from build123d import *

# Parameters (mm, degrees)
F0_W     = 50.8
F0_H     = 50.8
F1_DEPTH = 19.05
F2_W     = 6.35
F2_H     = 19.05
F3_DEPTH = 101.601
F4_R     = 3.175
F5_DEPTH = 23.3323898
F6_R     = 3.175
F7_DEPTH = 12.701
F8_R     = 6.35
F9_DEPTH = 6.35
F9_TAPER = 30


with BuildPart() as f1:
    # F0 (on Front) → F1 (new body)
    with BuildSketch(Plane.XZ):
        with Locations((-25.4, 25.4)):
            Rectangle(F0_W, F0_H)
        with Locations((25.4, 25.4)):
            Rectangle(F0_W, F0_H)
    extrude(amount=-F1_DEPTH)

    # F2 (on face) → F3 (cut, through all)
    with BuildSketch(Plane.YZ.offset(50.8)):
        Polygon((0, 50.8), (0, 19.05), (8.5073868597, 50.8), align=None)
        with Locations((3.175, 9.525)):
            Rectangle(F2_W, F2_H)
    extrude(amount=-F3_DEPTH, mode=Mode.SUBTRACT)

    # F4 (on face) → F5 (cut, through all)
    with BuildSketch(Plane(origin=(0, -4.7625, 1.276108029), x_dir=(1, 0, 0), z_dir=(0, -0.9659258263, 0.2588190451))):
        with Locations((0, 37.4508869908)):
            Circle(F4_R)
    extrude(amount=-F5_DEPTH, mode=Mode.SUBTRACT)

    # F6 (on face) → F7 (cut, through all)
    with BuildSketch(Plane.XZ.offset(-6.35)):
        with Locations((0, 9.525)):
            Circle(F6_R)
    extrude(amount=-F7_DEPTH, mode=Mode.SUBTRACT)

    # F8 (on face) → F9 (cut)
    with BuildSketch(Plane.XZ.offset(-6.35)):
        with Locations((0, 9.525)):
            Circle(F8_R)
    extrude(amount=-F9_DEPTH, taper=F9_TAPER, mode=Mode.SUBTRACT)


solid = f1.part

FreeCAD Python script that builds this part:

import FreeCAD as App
import Part
import Sketcher
from FreeCAD import Vector
Q = App.Units.Quantity

doc = App.newDocument("Part")
body = doc.addObject("PartDesign::Body", "Body")

sketch1 = body.newObject("Sketcher::SketchObject", "Sketch")
sketch1.AttachmentSupport = (doc.getObject("XZ_Plane"), [""])
sketch1.MapMode = "FlatFace"
sketch1.addGeometry([
    Part.LineSegment(Vector(-51, 51, 0), Vector(-51, 0, 0)),
    Part.LineSegment(Vector(-51, 0, 0), Vector(51, 0, 0)),
    Part.LineSegment(Vector(51, 0, 0), Vector(51, 51, 0)),
    Part.LineSegment(Vector(51, 51, 0), Vector(-51, 51, 0)),
], False)
sketch1.addConstraint([
    Sketcher.Constraint("Coincident", 0, 2, 1, 1),
    Sketcher.Constraint("Coincident", 1, 2, 2, 1),
    Sketcher.Constraint("Coincident", 2, 2, 3, 1),
    Sketcher.Constraint("Coincident", 3, 2, 0, 1),
    Sketcher.Constraint("Vertical", 0),
    Sketcher.Constraint("Horizontal", 1),
    Sketcher.Constraint("Vertical", 2),
    Sketcher.Constraint("Horizontal", 3),
    Sketcher.Constraint("Symmetric", 0, 2, 1, 2, -1, 1),
    Sketcher.Constraint("DistanceX", 1, 1, 1, 2, Q("4 in")),
    Sketcher.Constraint("DistanceY", 0, 2, 0, 1, Q("2 in")),
])
pad1 = body.newObject("PartDesign::Pad", "Pad")
pad1.Profile = sketch1
pad1.Length = Q("0.75 in")
pad1.Reversed = True

sketch2 = body.newObject("Sketcher::SketchObject", "Sketch001")
sketch2.AttachmentSupport = (doc.getObject("YZ_Plane"), [""])
sketch2.MapMode = "FlatFace"
sketch2.AttachmentOffset = App.Placement(Vector(0, 0, 2 * 25.4), App.Rotation())
sketch2.addGeometry([
    Part.LineSegment(Vector(0, 51, 0), Vector(0, 19, 0)),
    Part.LineSegment(Vector(0, 19, 0), Vector(9, 51, 0)),
    Part.LineSegment(Vector(9, 51, 0), Vector(0, 51, 0)),
    Part.LineSegment(Vector(0, 19, 0), Vector(0, 0, 0)),
    Part.LineSegment(Vector(0, 0, 0), Vector(6, 0, 0)),
    Part.LineSegment(Vector(6, 0, 0), Vector(6, 19, 0)),
    Part.LineSegment(Vector(6, 19, 0), Vector(0, 19, 0)),
], False)
sketch2.addConstraint([
    Sketcher.Constraint("Coincident", 0, 2, 1, 1),
    Sketcher.Constraint("Coincident", 1, 2, 2, 1),
    Sketcher.Constraint("Coincident", 2, 2, 0, 1),
    Sketcher.Constraint("Coincident", 3, 2, 4, 1),
    Sketcher.Constraint("Coincident", 4, 2, 5, 1),
    Sketcher.Constraint("Coincident", 5, 2, 6, 1),
    Sketcher.Constraint("Coincident", 6, 2, 3, 1),
    Sketcher.Constraint("Vertical", 0),
    Sketcher.Constraint("Horizontal", 2),
    Sketcher.Constraint("Vertical", 3),
    Sketcher.Constraint("Horizontal", 4),
    Sketcher.Constraint("Vertical", 5),
    Sketcher.Constraint("Horizontal", 6),
    Sketcher.Constraint("Coincident", 3, 2, -1, 1),
    Sketcher.Constraint("Coincident", 6, 2, 0, 2),
    Sketcher.Constraint("DistanceY", -1, 1, 1, 2, Q("2 in")),
    Sketcher.Constraint("Angle", 1, Q("75 deg")),
    Sketcher.Constraint("DistanceX", 4, 1, 4, 2, Q("0.25 in")),
    Sketcher.Constraint("DistanceY", 0, 2, 0, 1, Q("1.25 in")),
])
pocket1 = body.newObject("PartDesign::Pocket", "Pocket")
pocket1.Profile = sketch2
pocket1.Type = "ThroughAll"

sketch3 = body.newObject("Sketcher::SketchObject", "Sketch002")
sketch3.Placement = App.Placement(Vector(0, -4.7625, 1.276108), App.Rotation(Vector(1, 0, 0), Vector(0, 0.258819045, 0.965925826), Vector(0, -0.965925826, 0.258819045), "ZXY"))
sketch3.addGeometry(Part.Circle(Vector(0, 37.5, 0), Vector(0, 0, 1), 3.2), False)
sketch3.addConstraint([
    Sketcher.Constraint("PointOnObject", 0, 3, -2),
    Sketcher.Constraint("Diameter", 0, Q("0.25 in")),
    Sketcher.Constraint("DistanceY", -1, 1, 0, 3, 37.450887),
])
pocket2 = body.newObject("PartDesign::Pocket", "Pocket001")
pocket2.Profile = sketch3
pocket2.Type = "ThroughAll"

sketch4 = body.newObject("Sketcher::SketchObject", "Sketch003")
sketch4.AttachmentSupport = (doc.getObject("XZ_Plane"), [""])
sketch4.MapMode = "FlatFace"
sketch4.AttachmentOffset = App.Placement(Vector(0, 0, -0.25 * 25.4), App.Rotation())
sketch4.addGeometry(Part.Circle(Vector(0, 9.5, 0), Vector(0, 0, 1), 3.2), False)
sketch4.addConstraint([
    Sketcher.Constraint("PointOnObject", 0, 3, -2),
    Sketcher.Constraint("Diameter", 0, Q("0.25 in")),
    Sketcher.Constraint("DistanceY", -1, 1, 0, 3, Q("0.375 in")),
])
pocket3 = body.newObject("PartDesign::Pocket", "Pocket002")
pocket3.Profile = sketch4
pocket3.Type = "ThroughAll"

sketch5 = body.newObject("Sketcher::SketchObject", "Sketch004")
sketch5.AttachmentSupport = (doc.getObject("XZ_Plane"), [""])
sketch5.MapMode = "FlatFace"
sketch5.AttachmentOffset = App.Placement(Vector(0, 0, -0.25 * 25.4), App.Rotation())
sketch5.addGeometry(Part.Circle(Vector(0, 10, 0), Vector(0, 0, 1), 6), False)
sketch5.addConstraint([
    Sketcher.Constraint("PointOnObject", 0, 3, -2),
    Sketcher.Constraint("Diameter", 0, Q("0.5 in")),
    Sketcher.Constraint("DistanceY", -1, 1, 0, 3, Q("0.375 in")),
])
pocket4 = body.newObject("PartDesign::Pocket", "Pocket003")
pocket4.Profile = sketch5
pocket4.Length = Q("0.25 in")
pocket4.TaperAngle = -30

doc.recompute()
